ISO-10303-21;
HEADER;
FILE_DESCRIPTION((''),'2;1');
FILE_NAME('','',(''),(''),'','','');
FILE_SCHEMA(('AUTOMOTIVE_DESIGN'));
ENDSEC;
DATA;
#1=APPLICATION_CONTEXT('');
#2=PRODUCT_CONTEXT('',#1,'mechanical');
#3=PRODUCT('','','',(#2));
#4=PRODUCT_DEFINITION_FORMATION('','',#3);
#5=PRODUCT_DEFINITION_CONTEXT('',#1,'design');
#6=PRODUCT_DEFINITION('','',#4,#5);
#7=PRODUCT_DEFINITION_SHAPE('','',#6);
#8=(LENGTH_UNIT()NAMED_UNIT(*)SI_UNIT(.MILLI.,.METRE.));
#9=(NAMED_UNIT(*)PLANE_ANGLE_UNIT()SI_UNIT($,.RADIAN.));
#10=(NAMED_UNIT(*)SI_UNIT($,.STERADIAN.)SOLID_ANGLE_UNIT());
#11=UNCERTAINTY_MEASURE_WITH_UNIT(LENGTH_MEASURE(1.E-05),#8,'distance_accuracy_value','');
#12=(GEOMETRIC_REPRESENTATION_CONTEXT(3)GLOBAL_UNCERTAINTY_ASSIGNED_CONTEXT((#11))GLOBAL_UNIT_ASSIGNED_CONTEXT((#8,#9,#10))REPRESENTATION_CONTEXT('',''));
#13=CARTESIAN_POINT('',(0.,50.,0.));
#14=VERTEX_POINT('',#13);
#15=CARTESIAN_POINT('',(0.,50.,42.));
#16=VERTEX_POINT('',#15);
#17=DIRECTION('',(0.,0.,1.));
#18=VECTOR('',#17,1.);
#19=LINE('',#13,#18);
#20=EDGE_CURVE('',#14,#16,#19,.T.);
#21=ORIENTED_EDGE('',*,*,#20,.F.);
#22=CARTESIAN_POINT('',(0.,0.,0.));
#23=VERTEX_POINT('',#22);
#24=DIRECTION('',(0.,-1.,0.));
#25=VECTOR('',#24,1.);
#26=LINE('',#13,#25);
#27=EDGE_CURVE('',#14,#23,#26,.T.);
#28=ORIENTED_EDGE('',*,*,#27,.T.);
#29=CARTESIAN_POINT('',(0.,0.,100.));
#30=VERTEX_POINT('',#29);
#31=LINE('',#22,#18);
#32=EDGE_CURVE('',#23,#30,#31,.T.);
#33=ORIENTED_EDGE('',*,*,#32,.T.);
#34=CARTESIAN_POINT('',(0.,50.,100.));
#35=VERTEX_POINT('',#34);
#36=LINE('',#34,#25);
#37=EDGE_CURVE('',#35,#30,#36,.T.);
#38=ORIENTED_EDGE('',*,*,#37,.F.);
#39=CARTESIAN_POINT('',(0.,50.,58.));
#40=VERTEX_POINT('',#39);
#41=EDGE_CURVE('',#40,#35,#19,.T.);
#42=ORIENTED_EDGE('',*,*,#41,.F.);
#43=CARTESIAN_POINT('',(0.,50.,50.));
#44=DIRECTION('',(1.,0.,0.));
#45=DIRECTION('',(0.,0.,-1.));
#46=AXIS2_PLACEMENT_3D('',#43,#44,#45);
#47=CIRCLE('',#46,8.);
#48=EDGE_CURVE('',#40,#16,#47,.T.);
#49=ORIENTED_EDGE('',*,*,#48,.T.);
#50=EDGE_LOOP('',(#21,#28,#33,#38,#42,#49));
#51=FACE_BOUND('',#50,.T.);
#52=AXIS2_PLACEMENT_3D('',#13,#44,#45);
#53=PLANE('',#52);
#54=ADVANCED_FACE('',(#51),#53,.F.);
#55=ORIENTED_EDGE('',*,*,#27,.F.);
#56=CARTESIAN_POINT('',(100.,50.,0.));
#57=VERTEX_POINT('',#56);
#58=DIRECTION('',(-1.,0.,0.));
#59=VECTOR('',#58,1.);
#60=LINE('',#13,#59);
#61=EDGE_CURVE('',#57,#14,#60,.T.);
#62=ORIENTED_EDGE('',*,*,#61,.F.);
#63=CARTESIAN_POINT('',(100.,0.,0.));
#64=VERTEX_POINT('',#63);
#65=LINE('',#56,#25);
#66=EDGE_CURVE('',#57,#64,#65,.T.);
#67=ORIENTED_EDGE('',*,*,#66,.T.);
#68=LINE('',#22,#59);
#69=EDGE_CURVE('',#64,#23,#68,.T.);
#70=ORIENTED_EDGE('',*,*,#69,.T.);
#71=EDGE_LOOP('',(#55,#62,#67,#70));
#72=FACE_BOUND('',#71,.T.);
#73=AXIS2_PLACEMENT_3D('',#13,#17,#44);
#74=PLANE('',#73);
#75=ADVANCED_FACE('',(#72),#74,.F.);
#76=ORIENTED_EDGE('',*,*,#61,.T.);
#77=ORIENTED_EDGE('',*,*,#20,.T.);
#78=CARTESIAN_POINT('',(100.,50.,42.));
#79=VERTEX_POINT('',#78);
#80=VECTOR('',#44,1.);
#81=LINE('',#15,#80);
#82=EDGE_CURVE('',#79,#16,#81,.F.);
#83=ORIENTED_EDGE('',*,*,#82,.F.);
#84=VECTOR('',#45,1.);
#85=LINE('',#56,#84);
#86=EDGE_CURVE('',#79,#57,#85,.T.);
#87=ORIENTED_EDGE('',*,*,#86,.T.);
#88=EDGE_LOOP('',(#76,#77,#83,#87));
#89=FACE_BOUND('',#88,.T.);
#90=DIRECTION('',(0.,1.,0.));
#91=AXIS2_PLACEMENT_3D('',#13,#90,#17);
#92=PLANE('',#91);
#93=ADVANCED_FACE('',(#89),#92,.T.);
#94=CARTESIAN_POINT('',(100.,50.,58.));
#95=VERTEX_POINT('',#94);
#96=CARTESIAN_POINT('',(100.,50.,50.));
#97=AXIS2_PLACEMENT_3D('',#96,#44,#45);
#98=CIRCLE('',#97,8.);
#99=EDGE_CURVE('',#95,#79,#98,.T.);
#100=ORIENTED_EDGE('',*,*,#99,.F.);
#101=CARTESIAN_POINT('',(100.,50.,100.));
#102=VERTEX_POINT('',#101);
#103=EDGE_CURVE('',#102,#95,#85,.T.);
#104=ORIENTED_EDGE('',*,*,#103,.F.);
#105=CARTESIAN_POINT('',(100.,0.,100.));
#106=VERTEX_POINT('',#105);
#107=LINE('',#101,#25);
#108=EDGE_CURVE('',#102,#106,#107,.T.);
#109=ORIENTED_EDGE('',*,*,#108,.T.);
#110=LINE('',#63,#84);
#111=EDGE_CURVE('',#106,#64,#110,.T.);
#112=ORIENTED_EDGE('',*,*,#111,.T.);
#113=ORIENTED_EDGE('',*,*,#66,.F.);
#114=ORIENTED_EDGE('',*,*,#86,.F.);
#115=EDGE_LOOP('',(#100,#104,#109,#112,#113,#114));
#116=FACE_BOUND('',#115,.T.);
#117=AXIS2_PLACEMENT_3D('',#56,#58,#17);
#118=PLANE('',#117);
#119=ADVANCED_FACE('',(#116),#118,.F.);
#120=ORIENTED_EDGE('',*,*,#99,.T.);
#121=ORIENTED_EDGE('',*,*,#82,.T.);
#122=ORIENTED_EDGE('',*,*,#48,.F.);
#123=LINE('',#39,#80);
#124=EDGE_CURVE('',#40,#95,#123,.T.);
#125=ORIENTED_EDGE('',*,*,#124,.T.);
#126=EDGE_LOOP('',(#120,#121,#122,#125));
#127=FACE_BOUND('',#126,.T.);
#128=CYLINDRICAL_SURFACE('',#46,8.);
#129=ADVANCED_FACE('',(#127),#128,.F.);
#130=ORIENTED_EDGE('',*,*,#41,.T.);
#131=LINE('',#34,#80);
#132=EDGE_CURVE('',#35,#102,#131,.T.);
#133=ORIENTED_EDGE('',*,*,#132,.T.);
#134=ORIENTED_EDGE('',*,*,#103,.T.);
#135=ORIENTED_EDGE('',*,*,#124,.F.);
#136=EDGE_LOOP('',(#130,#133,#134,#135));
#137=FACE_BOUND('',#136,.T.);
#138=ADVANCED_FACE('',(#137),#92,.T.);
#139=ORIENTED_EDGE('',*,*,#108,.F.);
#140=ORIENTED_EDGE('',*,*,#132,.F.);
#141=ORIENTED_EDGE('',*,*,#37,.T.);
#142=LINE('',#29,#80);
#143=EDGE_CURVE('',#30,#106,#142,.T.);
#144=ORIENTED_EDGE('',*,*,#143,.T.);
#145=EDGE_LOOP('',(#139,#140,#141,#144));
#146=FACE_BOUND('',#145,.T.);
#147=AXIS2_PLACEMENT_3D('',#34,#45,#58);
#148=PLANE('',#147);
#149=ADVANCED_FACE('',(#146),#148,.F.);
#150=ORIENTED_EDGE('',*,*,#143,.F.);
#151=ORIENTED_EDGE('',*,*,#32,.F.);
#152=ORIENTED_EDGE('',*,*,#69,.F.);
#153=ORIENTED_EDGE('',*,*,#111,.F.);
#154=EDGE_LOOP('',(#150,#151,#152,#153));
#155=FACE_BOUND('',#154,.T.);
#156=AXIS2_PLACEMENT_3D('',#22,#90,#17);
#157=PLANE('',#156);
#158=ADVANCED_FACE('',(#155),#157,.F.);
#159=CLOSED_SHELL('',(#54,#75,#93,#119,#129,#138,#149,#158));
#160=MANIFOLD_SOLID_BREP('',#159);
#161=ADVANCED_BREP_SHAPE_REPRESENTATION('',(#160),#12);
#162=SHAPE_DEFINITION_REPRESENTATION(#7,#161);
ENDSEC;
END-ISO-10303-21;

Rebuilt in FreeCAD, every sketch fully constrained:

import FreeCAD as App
import Part
import Sketcher
from FreeCAD import Vector


def add_polygon(sketch, points):
    """Adds a closed chain of lines whose ends are joined by coincident constraints."""
    first, n = sketch.GeometryCount, len(points)
    for a, b in zip(points, points[1:] + points[:1]):
        sketch.addGeometry(Part.LineSegment(App.Vector(*a, 0), App.Vector(*b, 0)), False)
    for i in range(n):
        sketch.addConstraint(Sketcher.Constraint("Coincident", first + i, 2, first + (i + 1) % n, 1))

doc = App.newDocument("Part")
params = doc.addObject("Spreadsheet::Sheet", "Params")
for row, (alias, value) in enumerate([
    ("sketch1_width", "100 mm"),
    ("pad1_length", "50 mm"),
    ("sketch2_diameter", "16 mm"),
], start=1):
    params.set(f"A{row}", alias)
    params.set(f"B{row}", "=" + value)
    params.setAlias(f"B{row}", alias)

body = doc.addObject("PartDesign::Body", "Body")

# Sketch on XZ plane
sketch1 = doc.addObject("Sketcher::SketchObject", "Sketch")
body.addObject(sketch1)
sketch1.AttachmentSupport = (doc.XZ_Plane, [""])
sketch1.MapMode = "FlatFace"
add_polygon(sketch1, [(0, 0), (0, 100), (100, 100), (100, 0)])  # lines 0-3
sketch1.addConstraint(Sketcher.Constraint("Vertical", 0))
sketch1.addConstraint(Sketcher.Constraint("Horizontal", 1))
sketch1.addConstraint(Sketcher.Constraint("Vertical", 2))
sketch1.addConstraint(Sketcher.Constraint("Horizontal", 3))
sketch1.addConstraint(Sketcher.Constraint("Coincident", 3, 2, -1, 1))
sketch1.addConstraint(Sketcher.Constraint("Equal", 3, 0))
sketch1.addConstraint(Sketcher.Constraint("DistanceX", 1, 1, 1, 2, 100.0))
sketch1.setExpression("Constraints[10]", "Params.sketch1_width")
pad1 = doc.addObject("PartDesign::Pad", "Pad")
body.addObject(pad1)
pad1.Profile = sketch1
pad1.setExpression("Length", "Params.pad1_length")
pad1.Reversed = True

# Sketch on YZ plane
sketch2 = doc.addObject("Sketcher::SketchObject", "Sketch001")
body.addObject(sketch2)
sketch2.AttachmentSupport = (doc.YZ_Plane, [""])
sketch2.MapMode = "FlatFace"
sketch2.AttachmentOffset = App.Placement(Vector(0, 0, 100), App.Rotation())
sketch2.addGeometry(Part.Circle(Vector(50, 50, 0), Vector(0, 0, 1), 8), False)
sketch2.addConstraint(Sketcher.Constraint("Diameter", 0, 16.0))
sketch2.addConstraint(Sketcher.Constraint("DistanceX", -1, 1, 0, 3, 50.0))
sketch2.addConstraint(Sketcher.Constraint("DistanceY", -1, 1, 0, 3, 50.0))
sketch2.setExpression("Constraints[0]", "Params.sketch2_diameter")
pocket1 = doc.addObject("PartDesign::Pocket", "Pocket")
body.addObject(pocket1)
pocket1.Profile = sketch2
pocket1.Type = "ThroughAll"

doc.recompute()
